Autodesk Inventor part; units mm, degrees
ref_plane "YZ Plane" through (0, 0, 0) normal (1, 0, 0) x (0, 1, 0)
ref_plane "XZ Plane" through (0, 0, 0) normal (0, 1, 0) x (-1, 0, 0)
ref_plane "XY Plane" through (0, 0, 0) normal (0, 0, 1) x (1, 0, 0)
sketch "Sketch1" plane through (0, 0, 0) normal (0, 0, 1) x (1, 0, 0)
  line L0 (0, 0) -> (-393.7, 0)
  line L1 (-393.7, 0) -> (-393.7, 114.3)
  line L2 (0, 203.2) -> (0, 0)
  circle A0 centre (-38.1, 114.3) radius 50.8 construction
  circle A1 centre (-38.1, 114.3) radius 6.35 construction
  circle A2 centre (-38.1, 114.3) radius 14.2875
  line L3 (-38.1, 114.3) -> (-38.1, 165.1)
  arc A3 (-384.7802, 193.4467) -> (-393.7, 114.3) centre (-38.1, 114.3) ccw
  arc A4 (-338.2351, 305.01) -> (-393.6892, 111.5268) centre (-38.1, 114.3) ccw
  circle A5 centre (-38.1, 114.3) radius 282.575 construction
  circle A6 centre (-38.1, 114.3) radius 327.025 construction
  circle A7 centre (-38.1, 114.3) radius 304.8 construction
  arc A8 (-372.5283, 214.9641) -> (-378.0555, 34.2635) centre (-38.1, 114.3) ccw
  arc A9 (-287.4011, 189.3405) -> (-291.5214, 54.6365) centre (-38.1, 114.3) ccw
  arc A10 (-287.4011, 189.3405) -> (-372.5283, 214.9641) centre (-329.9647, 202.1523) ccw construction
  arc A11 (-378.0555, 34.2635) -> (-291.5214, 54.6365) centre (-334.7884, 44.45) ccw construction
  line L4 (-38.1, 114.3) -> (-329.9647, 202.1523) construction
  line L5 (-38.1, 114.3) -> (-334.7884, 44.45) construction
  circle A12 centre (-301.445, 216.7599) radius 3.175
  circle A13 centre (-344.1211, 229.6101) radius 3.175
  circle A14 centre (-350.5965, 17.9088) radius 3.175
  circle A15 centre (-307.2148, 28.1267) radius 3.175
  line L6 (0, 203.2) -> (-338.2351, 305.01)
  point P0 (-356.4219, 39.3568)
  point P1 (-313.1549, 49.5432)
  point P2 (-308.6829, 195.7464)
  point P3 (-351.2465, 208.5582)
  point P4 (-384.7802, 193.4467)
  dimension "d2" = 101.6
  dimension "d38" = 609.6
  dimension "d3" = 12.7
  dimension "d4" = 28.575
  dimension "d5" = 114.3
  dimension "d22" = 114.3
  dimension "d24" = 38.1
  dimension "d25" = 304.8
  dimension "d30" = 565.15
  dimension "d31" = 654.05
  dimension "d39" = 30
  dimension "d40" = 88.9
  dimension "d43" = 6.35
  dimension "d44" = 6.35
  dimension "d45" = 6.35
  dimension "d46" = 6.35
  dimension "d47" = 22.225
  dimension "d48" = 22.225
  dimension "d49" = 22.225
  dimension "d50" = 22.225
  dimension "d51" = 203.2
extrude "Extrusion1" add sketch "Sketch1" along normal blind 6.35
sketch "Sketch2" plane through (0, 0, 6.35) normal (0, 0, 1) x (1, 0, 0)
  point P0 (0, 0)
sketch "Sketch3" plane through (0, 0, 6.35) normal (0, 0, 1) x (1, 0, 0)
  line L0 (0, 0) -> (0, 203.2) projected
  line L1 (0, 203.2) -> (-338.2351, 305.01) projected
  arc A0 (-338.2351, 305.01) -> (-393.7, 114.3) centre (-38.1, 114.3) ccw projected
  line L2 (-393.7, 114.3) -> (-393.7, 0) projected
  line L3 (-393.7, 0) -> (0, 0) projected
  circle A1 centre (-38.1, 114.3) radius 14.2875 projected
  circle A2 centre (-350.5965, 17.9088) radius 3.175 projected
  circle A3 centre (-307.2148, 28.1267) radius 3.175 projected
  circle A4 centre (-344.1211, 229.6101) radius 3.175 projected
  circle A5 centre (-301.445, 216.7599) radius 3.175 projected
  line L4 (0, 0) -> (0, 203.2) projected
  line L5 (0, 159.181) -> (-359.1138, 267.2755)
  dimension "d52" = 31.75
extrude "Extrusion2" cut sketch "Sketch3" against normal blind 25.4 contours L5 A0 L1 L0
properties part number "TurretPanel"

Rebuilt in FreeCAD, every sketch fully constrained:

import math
import FreeCAD as App
import Part
import Sketcher
from FreeCAD import Vector
Q = App.Units.Quantity

doc = App.newDocument("Part")
body = doc.addObject("PartDesign::Body", "Body")

# Sketch on XY plane
sketch1 = doc.addObject("Sketcher::SketchObject", "Sketch")
body.addObject(sketch1)
sketch1.AttachmentSupport = (doc.XY_Plane, [""])
sketch1.MapMode = "FlatFace"
sketch1.addGeometry(Part.LineSegment(Vector(-393.7, 0, 0), Vector(0, 0, 0)), False)
sketch1.addGeometry(Part.LineSegment(Vector(0, 0, 0), Vector(0, 203.2, 0)), False)
sketch1.addGeometry(Part.LineSegment(Vector(0, 203.2, 0), Vector(-338.2, 305, 0)), False)
sketch1.addGeometry(Part.ArcOfCircle(Part.Circle(Vector(-38.1, 114.3, 0), Vector(0, 0, 1), 355.6), math.radians(147.57), math.radians(167.14)), False)
sketch1.addGeometry(Part.ArcOfCircle(Part.Circle(Vector(-38.1, 114.3, 0), Vector(0, 0, 1), 355.6), math.radians(167.14), math.radians(180)), False)
sketch1.addGeometry(Part.LineSegment(Vector(-393.7, 114.3, 0), Vector(-393.7, 0, 0)), False)
sketch1.addGeometry(Part.Circle(Vector(-350.6, 17.9, 0), Vector(0, 0, 1), 3.2), False)
sketch1.addGeometry(Part.Circle(Vector(-307.2, 28.1, 0), Vector(0, 0, 1), 3.2), False)
sketch1.addGeometry(Part.Circle(Vector(-38.1, 114.3, 0), Vector(0, 0, 1), 14.3), False)
sketch1.addGeometry(Part.Circle(Vector(-301.4, 216.8, 0), Vector(0, 0, 1), 3.2), False)
sketch1.addGeometry(Part.Circle(Vector(-344.1, 229.6, 0), Vector(0, 0, 1), 3.2), False)
sketch1.addConstraint(Sketcher.Constraint("Coincident", 0, 2, 1, 1))
sketch1.addConstraint(Sketcher.Constraint("Coincident", 1, 2, 2, 1))
sketch1.addConstraint(Sketcher.Constraint("Coincident", 2, 2, 3, 1))
sketch1.addConstraint(Sketcher.Constraint("Tangent", 3, 2, 4, 1))
sketch1.addConstraint(Sketcher.Constraint("Tangent", 4, 2, 5, 1))
sketch1.addConstraint(Sketcher.Constraint("Coincident", 5, 2, 0, 1))
sketch1.addConstraint(Sketcher.Constraint("Horizontal", 0))
sketch1.addConstraint(Sketcher.Constraint("Vertical", 1))
sketch1.addConstraint(Sketcher.Constraint("Vertical", 5))
sketch1.addConstraint(Sketcher.Constraint("Coincident", 0, 2, -1, 1))
sketch1.addConstraint(Sketcher.Constraint("Coincident", 8, 3, 3, 3))
sketch1.addConstraint(Sketcher.Constraint("Equal", 3, 4))
sketch1.addConstraint(Sketcher.Constraint("Equal", 6, 7))
sketch1.addConstraint(Sketcher.Constraint("Equal", 7, 9))
sketch1.addConstraint(Sketcher.Constraint("Equal", 9, 10))
sketch1.addConstraint(Sketcher.Constraint("Diameter", 6, Q("0.25 in")))
sketch1.addConstraint(Sketcher.Constraint("DistanceY", 1, 1, 1, 2, Q("8 in")))
sketch1.addConstraint(Sketcher.Constraint("Diameter", 8, Q("1.125 in")))
sketch1.addConstraint(Sketcher.Constraint("DistanceY", 5, 2, 5, 1, Q("4.5 in")))
sketch1.addConstraint(Sketcher.Constraint("Radius", 3, Q("14 in")))
sketch1.addConstraint(Sketcher.Constraint("DistanceX", 3, 3, -1, 1, Q("1.5 in")))
sketch1.addConstraint(Sketcher.Constraint("DistanceX", 6, 3, -1, 1, Q("13.803 in")))
sketch1.addConstraint(Sketcher.Constraint("DistanceY", -1, 1, 3, 2, Q("7.616 in")))
sketch1.addConstraint(Sketcher.Constraint("DistanceX", 10, 3, 7, 3, Q("1.453 in")))
sketch1.addConstraint(Sketcher.Constraint("DistanceY", 7, 3, 9, 3, Q("7.4265 in")))
sketch1.addConstraint(Sketcher.Constraint("DistanceX", 6, 3, 9, 3, Q("1.9351 in")))
sketch1.addConstraint(Sketcher.Constraint("DistanceY", 6, 3, 10, 3, Q("8.3347 in")))
sketch1.addConstraint(Sketcher.Constraint("DistanceY", 10, 3, 2, 2, Q("2.9685 in")))
sketch1.addConstraint(Sketcher.Constraint("Distance", 2, Q("353.2255 mm")))
sketch1.addConstraint(Sketcher.Constraint("DistanceX", 7, 3, -1, 1, Q("307.2148 mm")))
sketch1.addConstraint(Sketcher.Constraint("DistanceY", -1, 1, 7, 3, Q("28.1267 mm")))
pad1 = doc.addObject("PartDesign::Pad", "Pad")
body.addObject(pad1)
pad1.Profile = sketch1
pad1.Length = Q("0.25 in")

# Sketch on XY plane
sketch2 = doc.addObject("Sketcher::SketchObject", "Sketch001")
body.addObject(sketch2)
sketch2.AttachmentSupport = (doc.XY_Plane, [""])
sketch2.MapMode = "FlatFace"
sketch2.AttachmentOffset = App.Placement(Vector(0, 0, 0.25 * 25.4), App.Rotation())
sketch2.addGeometry(Part.LineSegment(Vector(-359, 267, 0), Vector(0, 159, 0)), False)
sketch2.addGeometry(Part.LineSegment(Vector(0, 159, 0), Vector(0, 203, 0)), False)
sketch2.addGeometry(Part.LineSegment(Vector(0, 203, 0), Vector(-338, 305, 0)), False)
sketch2.addGeometry(Part.ArcOfCircle(Part.Circle(Vector(-38, 114, 0), Vector(0, 0, 1), 356), math.radians(147.57), math.radians(154.52)), False)
sketch2.addConstraint(Sketcher.Constraint("Coincident", 0, 2, 1, 1))
sketch2.addConstraint(Sketcher.Constraint("Coincident", 1, 2, 2, 1))
sketch2.addConstraint(Sketcher.Constraint("Coincident", 2, 2, 3, 1))
sketch2.addConstraint(Sketcher.Constraint("Coincident", 3, 2, 0, 1))
sketch2.addConstraint(Sketcher.Constraint("Vertical", 1))
sketch2.addConstraint(Sketcher.Constraint("PointOnObject", 0, 2, -2))
sketch2.addConstraint(Sketcher.Constraint("Parallel", 0, 2))
sketch2.addConstraint(Sketcher.Constraint("Radius", 3, Q("14 in")))
sketch2.addConstraint(Sketcher.Constraint("DistanceY", -1, 1, 1, 2, Q("8 in")))
sketch2.addConstraint(Sketcher.Constraint("DistanceX", 3, 3, -1, 1, Q("1.5 in")))
sketch2.addConstraint(Sketcher.Constraint("DistanceY", -1, 1, 3, 3, Q("4.5 in")))
sketch2.addConstraint(Sketcher.Constraint("DistanceY", 1, 1, 1, 2, Q("44.019 mm")))
sketch2.addConstraint(Sketcher.Constraint("DistanceY", 0, 2, 2, 2, Q("5.7413 in")))
pocket1 = doc.addObject("PartDesign::Pocket", "Pocket")
body.addObject(pocket1)
pocket1.Profile = sketch2
pocket1.Length = Q("1 in")

doc.recompute()
